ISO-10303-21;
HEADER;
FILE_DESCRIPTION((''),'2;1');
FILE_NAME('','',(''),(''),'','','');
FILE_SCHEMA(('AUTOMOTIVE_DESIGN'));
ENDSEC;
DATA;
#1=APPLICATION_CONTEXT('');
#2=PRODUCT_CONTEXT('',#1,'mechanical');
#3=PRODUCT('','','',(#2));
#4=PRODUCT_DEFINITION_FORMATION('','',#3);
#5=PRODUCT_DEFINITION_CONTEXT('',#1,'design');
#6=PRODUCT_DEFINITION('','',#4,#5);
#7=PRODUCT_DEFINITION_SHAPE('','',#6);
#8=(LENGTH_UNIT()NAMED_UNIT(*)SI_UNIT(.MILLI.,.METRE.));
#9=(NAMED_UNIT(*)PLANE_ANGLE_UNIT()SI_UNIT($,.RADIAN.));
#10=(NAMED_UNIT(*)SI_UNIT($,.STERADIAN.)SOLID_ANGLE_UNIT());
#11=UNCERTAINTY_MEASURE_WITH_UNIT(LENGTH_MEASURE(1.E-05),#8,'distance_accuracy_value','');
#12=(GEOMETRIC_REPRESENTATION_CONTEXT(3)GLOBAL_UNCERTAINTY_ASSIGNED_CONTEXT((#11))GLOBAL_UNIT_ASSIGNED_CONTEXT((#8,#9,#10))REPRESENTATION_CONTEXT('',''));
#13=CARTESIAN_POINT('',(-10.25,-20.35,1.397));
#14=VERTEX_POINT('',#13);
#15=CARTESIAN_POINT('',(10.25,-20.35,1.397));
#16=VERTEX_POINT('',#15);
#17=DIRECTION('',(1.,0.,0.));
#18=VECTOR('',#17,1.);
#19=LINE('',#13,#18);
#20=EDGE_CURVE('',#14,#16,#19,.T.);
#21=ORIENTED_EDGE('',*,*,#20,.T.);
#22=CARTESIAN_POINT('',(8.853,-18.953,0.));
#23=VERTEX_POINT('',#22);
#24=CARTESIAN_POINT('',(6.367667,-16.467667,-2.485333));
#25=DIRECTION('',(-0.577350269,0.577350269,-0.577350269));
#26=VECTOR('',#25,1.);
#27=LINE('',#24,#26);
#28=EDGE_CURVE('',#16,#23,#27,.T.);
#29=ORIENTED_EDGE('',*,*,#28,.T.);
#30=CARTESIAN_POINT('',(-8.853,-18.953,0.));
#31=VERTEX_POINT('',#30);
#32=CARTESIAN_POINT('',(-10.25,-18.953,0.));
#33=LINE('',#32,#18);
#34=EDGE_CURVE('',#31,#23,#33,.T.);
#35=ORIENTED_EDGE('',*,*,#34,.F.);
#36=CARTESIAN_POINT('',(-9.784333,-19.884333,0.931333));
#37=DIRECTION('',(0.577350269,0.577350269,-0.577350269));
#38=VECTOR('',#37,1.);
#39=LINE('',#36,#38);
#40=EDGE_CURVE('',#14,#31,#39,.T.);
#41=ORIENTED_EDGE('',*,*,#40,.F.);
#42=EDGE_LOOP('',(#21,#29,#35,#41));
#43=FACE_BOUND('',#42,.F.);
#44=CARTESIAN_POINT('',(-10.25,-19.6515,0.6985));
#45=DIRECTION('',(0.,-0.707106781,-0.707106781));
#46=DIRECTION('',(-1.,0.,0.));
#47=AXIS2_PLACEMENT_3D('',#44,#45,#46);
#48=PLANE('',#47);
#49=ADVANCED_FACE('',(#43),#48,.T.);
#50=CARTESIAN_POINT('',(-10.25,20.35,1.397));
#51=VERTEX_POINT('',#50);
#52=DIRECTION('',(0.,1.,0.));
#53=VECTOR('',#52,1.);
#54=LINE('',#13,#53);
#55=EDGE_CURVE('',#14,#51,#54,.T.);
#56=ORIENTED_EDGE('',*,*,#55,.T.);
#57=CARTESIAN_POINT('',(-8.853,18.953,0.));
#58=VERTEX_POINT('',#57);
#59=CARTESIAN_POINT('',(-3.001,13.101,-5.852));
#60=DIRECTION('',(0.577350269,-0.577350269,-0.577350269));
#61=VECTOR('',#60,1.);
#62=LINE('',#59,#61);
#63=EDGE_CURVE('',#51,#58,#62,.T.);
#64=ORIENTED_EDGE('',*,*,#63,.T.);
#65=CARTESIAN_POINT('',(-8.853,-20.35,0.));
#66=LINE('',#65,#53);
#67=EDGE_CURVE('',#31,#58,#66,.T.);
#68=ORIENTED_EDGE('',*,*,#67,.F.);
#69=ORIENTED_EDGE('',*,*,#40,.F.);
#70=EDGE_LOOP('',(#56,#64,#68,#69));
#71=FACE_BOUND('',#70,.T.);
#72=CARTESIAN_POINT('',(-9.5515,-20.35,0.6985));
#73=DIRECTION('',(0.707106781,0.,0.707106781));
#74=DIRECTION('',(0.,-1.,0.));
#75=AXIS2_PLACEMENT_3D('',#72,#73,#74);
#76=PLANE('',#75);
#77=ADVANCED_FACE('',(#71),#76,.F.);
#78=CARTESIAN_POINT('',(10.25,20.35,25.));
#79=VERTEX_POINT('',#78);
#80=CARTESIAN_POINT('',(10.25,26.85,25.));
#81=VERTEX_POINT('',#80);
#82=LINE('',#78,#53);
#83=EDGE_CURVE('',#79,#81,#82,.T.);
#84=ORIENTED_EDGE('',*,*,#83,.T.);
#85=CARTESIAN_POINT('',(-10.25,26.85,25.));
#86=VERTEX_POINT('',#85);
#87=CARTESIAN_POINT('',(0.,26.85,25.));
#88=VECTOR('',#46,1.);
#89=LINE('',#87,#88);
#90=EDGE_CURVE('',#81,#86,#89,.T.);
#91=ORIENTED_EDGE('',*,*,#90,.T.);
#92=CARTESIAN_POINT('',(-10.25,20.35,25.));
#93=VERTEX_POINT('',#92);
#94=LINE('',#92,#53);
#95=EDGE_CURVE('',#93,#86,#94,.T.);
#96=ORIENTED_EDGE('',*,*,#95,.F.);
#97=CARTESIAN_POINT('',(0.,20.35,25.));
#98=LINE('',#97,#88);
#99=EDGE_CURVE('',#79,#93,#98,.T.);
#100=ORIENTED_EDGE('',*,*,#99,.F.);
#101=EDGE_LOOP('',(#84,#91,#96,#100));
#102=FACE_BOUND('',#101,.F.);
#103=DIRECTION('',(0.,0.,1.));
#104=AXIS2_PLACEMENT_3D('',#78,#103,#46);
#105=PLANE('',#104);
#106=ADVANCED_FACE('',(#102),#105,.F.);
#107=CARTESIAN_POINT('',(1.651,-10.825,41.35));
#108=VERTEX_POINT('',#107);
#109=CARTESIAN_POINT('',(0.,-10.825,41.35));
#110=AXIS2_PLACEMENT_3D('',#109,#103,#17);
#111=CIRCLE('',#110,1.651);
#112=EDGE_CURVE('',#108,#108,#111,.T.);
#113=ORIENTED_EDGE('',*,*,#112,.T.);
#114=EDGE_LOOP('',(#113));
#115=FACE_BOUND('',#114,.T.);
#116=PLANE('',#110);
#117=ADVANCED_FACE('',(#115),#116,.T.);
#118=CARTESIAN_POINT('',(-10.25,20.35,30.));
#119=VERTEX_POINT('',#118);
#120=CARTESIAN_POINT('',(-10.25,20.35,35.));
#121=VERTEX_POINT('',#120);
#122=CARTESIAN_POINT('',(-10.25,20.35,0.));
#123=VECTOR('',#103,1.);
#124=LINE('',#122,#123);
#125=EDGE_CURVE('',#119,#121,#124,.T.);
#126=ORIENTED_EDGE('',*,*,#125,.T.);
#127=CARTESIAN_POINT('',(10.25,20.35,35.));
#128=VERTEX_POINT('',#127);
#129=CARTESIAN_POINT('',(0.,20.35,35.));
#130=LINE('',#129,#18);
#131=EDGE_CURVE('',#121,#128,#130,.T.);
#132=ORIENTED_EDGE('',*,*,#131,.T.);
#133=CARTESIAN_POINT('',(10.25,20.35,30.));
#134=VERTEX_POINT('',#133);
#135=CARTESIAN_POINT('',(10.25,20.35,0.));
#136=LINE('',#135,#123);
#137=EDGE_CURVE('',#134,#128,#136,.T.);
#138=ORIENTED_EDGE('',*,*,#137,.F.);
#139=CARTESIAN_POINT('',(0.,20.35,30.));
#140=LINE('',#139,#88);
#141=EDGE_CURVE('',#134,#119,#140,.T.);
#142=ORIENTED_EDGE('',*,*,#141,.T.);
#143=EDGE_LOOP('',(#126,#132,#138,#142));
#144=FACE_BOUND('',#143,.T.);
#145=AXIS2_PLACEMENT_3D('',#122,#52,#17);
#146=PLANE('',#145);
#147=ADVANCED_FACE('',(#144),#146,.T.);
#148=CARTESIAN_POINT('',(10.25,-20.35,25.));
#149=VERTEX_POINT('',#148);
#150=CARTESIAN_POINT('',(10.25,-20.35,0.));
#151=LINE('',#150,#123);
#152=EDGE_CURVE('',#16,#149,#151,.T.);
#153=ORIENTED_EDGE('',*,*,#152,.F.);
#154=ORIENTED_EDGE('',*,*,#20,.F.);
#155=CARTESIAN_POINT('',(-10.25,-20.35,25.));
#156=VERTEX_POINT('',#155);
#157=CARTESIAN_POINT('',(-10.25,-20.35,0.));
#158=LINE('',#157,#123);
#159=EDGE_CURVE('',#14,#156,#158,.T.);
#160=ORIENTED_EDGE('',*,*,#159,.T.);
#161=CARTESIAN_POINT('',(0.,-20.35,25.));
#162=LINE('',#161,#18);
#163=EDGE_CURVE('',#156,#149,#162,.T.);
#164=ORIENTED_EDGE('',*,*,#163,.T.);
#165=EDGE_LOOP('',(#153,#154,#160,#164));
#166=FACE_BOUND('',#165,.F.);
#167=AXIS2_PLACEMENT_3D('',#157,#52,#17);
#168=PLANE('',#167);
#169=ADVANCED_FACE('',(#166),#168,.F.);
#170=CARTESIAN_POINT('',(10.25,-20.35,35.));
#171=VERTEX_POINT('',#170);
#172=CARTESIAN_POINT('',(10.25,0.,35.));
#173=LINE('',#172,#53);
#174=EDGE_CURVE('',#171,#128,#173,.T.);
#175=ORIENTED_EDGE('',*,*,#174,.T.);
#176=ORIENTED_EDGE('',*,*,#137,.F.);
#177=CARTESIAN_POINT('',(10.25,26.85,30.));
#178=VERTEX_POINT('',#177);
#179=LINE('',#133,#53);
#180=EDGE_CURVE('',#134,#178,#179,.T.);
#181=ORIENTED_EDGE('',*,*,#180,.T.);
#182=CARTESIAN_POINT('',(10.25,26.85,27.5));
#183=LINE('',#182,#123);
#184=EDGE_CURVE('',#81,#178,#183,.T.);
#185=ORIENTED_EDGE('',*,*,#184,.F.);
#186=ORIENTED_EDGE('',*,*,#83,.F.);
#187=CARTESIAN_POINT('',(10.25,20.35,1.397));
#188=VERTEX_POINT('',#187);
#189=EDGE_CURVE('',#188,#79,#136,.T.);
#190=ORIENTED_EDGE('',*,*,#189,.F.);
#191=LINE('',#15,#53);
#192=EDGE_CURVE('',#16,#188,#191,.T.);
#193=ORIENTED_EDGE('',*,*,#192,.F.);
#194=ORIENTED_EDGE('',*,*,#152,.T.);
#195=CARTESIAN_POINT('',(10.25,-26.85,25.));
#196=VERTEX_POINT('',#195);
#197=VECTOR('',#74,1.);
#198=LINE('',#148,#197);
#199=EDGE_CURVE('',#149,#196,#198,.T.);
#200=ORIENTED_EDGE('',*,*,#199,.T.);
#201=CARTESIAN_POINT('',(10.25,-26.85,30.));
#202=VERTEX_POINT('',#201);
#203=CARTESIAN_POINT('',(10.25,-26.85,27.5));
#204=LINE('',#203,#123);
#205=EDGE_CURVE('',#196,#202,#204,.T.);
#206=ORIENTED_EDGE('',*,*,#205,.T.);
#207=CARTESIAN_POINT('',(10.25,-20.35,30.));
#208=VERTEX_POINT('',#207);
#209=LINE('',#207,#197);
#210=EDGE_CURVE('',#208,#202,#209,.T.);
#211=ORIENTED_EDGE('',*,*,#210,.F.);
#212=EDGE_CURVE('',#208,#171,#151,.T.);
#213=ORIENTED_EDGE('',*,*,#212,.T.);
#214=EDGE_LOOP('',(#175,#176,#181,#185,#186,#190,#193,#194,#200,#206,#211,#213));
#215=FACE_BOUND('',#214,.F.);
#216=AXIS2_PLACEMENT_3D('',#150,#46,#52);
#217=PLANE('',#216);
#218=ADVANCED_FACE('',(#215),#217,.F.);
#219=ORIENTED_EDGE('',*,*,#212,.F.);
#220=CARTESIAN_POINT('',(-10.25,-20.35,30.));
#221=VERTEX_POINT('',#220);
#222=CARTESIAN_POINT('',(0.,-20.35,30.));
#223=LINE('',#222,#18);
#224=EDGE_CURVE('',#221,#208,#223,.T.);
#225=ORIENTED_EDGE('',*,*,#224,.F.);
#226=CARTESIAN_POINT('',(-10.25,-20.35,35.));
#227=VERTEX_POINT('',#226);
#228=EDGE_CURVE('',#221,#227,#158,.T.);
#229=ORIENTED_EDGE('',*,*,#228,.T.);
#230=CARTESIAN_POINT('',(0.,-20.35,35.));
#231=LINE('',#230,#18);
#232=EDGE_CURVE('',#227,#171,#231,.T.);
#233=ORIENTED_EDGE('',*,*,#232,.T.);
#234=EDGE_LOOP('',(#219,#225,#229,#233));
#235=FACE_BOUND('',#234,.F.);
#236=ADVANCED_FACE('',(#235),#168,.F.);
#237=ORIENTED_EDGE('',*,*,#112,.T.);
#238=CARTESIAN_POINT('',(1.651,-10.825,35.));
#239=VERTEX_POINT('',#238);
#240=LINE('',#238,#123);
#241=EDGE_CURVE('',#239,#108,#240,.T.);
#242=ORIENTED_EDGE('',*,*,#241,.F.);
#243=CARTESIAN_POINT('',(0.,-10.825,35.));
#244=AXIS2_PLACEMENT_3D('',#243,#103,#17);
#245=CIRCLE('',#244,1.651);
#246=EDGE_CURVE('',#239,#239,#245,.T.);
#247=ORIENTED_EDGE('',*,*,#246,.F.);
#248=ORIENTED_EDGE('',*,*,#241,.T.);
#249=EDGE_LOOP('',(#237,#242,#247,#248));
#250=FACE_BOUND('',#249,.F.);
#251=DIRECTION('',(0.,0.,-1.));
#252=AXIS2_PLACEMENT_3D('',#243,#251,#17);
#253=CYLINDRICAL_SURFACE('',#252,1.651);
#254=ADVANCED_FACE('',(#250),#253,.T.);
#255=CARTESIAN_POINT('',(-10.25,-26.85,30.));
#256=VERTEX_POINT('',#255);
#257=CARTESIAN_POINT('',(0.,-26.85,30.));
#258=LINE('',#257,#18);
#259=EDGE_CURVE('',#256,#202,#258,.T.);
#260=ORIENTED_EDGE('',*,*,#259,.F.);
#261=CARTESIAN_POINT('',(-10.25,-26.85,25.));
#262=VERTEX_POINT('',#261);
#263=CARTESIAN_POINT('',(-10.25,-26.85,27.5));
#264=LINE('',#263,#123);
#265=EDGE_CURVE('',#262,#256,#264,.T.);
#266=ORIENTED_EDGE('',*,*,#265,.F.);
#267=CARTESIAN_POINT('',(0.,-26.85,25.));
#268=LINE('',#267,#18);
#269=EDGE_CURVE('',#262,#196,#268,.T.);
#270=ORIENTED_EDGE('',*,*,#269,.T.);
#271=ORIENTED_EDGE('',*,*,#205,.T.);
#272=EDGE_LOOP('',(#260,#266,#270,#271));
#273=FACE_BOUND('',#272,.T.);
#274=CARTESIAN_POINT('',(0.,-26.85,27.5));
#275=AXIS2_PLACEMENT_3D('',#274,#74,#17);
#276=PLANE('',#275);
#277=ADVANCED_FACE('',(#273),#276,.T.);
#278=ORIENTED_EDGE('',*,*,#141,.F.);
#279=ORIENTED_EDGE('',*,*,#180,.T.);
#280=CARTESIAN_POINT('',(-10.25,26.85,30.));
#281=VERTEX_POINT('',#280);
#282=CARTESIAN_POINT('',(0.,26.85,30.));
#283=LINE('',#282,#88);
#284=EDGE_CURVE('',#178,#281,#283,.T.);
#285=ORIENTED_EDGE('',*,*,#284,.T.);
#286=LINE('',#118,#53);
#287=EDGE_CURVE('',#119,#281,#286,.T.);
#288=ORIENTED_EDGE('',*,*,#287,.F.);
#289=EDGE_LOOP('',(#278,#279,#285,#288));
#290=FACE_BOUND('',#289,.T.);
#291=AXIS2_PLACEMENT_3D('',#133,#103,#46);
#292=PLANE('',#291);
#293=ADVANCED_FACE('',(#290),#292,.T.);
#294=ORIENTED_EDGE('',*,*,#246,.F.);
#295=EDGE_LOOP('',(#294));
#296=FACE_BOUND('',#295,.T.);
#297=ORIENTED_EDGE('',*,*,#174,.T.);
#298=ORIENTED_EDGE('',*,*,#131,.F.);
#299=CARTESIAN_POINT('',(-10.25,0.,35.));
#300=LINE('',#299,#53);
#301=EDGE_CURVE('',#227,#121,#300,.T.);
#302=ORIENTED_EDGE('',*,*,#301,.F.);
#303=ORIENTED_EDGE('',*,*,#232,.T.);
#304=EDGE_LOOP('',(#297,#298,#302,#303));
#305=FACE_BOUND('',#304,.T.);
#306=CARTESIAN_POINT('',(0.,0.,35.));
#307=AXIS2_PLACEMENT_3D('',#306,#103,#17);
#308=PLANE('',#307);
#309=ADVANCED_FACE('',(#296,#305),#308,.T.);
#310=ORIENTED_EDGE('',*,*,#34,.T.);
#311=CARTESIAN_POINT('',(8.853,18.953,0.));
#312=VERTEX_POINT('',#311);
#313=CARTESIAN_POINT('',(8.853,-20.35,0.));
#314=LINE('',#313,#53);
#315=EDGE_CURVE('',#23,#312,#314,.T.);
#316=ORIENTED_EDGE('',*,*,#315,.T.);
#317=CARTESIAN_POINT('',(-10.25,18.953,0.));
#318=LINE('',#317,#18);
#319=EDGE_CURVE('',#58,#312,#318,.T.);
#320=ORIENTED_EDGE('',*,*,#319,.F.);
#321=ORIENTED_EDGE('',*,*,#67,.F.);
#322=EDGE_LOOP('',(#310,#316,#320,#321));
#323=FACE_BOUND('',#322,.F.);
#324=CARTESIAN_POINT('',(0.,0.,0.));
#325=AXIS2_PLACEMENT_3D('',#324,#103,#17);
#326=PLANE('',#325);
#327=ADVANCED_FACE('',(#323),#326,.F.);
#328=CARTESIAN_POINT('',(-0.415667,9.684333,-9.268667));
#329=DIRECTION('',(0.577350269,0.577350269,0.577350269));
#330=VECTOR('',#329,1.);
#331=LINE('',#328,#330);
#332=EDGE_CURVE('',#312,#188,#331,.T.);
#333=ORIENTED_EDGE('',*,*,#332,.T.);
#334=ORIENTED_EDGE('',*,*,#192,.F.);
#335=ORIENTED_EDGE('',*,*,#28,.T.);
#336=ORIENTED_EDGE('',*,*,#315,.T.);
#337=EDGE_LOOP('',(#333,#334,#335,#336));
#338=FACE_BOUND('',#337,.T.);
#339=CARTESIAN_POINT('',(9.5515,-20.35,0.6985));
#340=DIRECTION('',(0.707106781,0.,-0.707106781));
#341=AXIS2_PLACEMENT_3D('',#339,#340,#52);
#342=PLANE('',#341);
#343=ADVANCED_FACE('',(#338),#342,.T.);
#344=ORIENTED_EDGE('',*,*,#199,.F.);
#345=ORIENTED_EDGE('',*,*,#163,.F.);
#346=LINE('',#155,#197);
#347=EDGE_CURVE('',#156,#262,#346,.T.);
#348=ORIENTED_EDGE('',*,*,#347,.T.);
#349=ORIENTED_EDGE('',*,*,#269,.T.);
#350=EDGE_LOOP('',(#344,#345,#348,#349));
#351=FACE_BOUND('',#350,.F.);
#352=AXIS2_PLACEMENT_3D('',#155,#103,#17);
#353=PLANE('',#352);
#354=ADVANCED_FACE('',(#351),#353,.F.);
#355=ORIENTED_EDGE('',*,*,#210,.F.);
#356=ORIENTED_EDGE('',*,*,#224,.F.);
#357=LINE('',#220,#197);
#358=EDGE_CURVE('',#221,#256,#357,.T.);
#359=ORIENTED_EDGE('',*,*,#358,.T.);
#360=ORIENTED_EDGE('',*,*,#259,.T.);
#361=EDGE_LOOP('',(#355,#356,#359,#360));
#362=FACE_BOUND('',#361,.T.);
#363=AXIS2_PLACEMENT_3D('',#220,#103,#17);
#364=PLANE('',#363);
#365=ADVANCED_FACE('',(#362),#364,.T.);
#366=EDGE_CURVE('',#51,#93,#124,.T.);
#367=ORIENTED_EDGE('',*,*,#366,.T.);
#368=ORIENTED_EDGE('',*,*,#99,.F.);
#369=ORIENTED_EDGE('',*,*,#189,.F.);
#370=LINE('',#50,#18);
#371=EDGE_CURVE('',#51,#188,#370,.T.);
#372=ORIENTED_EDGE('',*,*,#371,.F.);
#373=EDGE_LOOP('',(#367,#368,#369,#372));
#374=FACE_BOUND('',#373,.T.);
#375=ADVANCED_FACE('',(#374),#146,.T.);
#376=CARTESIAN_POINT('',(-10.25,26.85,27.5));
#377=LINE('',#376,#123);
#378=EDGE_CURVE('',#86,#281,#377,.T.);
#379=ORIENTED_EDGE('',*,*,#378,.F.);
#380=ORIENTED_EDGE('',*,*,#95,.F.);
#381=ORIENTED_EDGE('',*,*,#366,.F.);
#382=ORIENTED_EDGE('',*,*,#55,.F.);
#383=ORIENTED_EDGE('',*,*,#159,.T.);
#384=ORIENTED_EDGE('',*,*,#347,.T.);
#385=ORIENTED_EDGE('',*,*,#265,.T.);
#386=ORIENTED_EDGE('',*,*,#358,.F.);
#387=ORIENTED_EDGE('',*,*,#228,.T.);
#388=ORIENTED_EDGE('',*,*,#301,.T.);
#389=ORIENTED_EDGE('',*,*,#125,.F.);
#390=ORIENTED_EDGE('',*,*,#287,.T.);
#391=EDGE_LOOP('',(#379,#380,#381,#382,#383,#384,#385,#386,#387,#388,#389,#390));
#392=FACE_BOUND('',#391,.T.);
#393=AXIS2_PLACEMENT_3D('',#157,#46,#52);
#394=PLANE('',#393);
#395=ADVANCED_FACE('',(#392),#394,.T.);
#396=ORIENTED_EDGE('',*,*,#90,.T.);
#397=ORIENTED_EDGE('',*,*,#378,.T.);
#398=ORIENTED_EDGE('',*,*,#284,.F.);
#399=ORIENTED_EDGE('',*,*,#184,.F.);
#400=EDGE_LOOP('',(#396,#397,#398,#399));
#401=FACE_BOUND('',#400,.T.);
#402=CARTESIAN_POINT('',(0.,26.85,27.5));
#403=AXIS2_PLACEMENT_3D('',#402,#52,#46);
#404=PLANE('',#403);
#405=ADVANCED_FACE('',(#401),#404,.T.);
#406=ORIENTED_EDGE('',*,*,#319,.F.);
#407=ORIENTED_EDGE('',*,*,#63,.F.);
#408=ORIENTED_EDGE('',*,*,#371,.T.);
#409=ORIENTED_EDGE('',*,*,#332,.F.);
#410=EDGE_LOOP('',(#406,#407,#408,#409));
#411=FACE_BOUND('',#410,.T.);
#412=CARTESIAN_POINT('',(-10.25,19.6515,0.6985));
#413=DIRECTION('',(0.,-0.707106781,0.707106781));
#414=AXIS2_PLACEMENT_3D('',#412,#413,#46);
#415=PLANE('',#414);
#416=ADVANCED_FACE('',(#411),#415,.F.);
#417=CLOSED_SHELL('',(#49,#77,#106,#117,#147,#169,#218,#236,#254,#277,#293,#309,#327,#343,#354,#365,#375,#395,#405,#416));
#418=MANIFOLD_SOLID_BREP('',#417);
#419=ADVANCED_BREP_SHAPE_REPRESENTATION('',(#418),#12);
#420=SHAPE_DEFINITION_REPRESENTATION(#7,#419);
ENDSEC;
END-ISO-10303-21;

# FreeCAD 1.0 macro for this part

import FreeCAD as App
import Part
import Sketcher
Q = App.Units.Quantity


def edges_at(feature, points):
    """Names of the edges that pass closest to the given points."""
    edges = feature.Shape.Edges
    near = lambda p: min(range(len(edges)), key=lambda i: edges[i].distToShape(Part.Vertex(*p))[0])
    return sorted({f"Edge{near(p) + 1}" for p in points})

doc = App.newDocument("Part")
params = doc.addObject("Spreadsheet::Sheet", "Params")
for row, (alias, value) in enumerate([
    ("sketch1_width", "20.5 mm"),
    ("sketch1_height", "40.7 mm"),
    ("pad1_length", "35 mm"),
    ("pad2_length", "6.35 mm"),
    ("sketch3_height", "5 mm"),
    ("sketch3_width", "20.5 mm"),
    ("pad3_length", "6.5 mm"),
    ("sketch4_height", "5 mm"),
    ("sketch4_width", "20.5 mm"),
    ("pad4_length", "6.5 mm"),
    ("chamfer_size", "1.397 mm"),
], start=1):
    params.set(f"A{row}", alias)
    params.set(f"B{row}", "=" + value)
    params.setAlias(f"B{row}", alias)

body = doc.addObject("PartDesign::Body", "Body")

sketch1 = doc.addObject("Sketcher::SketchObject", "Sketch")
body.addObject(sketch1)
sketch1.AttachmentSupport = (doc.XY_Plane, [""])
sketch1.MapMode = "FlatFace"
sketch1.addGeometry([
    Part.LineSegment(App.Vector(-10, 20, 0), App.Vector(-10, -20, 0)),
    Part.LineSegment(App.Vector(-10, -20, 0), App.Vector(10, -20, 0)),
    Part.LineSegment(App.Vector(10, -20, 0), App.Vector(10, 20, 0)),
    Part.LineSegment(App.Vector(10, 20, 0), App.Vector(-10, 20, 0)),
], False)
sketch1.addConstraint([
    Sketcher.Constraint("Coincident", 0, 2, 1, 1),
    Sketcher.Constraint("Coincident", 1, 2, 2, 1),
    Sketcher.Constraint("Coincident", 2, 2, 3, 1),
    Sketcher.Constraint("Coincident", 3, 2, 0, 1),
    Sketcher.Constraint("Vertical", 0),
    Sketcher.Constraint("Horizontal", 1),
    Sketcher.Constraint("Vertical", 2),
    Sketcher.Constraint("Horizontal", 3),
    Sketcher.Constraint("Symmetric", 0, 2, 2, 2, -1, 1),
    Sketcher.Constraint("DistanceX", 1, 1, 1, 2, Q("20.5 mm")),
    Sketcher.Constraint("DistanceY", 0, 2, 0, 1, Q("40.7 mm")),
])
sketch1.setExpression("Constraints[9]", "Params.sketch1_width")
sketch1.setExpression("Constraints[10]", "Params.sketch1_height")
pad1 = doc.addObject("PartDesign::Pad", "Pad")
body.addObject(pad1)
pad1.Profile = sketch1
pad1.setExpression("Length", "Params.pad1_length")

sketch2 = doc.addObject("Sketcher::SketchObject", "Sketch001")
body.addObject(sketch2)
sketch2.AttachmentSupport = (doc.XY_Plane, [""])
sketch2.MapMode = "FlatFace"
sketch2.AttachmentOffset = App.Placement(App.Vector(0, 0, 35), App.Rotation())
sketch2.addGeometry(Part.Circle(App.Vector(0, -10.8, 0), App.Vector(0, 0, 1), 1.7), False)
sketch2.addConstraint([
    Sketcher.Constraint("PointOnObject", 0, 3, -2),
    Sketcher.Constraint("Diameter", 0, Q("3.302 mm")),
    Sketcher.Constraint("DistanceY", 0, 3, -1, 1, Q("10.825 mm")),
])
pad2 = doc.addObject("PartDesign::Pad", "Pad001")
body.addObject(pad2)
pad2.Profile = sketch2
pad2.setExpression("Length", "Params.pad2_length")

sketch3 = doc.addObject("Sketcher::SketchObject", "Sketch002")
body.addObject(sketch3)
sketch3.AttachmentSupport = (doc.XZ_Plane, [""])
sketch3.MapMode = "FlatFace"
sketch3.AttachmentOffset = App.Placement(App.Vector(0, 0, 20.35), App.Rotation())
sketch3.addGeometry([
    Part.LineSegment(App.Vector(-10, 30, 0), App.Vector(-10, 25, 0)),
    Part.LineSegment(App.Vector(-10, 25, 0), App.Vector(10, 25, 0)),
    Part.LineSegment(App.Vector(10, 25, 0), App.Vector(10, 30, 0)),
    Part.LineSegment(App.Vector(10, 30, 0), App.Vector(-10, 30, 0)),
], False)
sketch3.addConstraint([
    Sketcher.Constraint("Coincident", 0, 2, 1, 1),
    Sketcher.Constraint("Coincident", 1, 2, 2, 1),
    Sketcher.Constraint("Coincident", 2, 2, 3, 1),
    Sketcher.Constraint("Coincident", 3, 2, 0, 1),
    Sketcher.Constraint("Vertical", 0),
    Sketcher.Constraint("Horizontal", 1),
    Sketcher.Constraint("Vertical", 2),
    Sketcher.Constraint("Horizontal", 3),
    Sketcher.Constraint("DistanceY", 0, 2, 0, 1, Q("5 mm")),
    Sketcher.Constraint("DistanceX", 1, 1, 1, 2, Q("20.5 mm")),
    Sketcher.Constraint("DistanceY", -1, 1, 0, 2, Q("25 mm")),
    Sketcher.Constraint("DistanceX", 0, 2, -1, 1, Q("10.25 mm")),
])
sketch3.setExpression("Constraints[8]", "Params.sketch3_height")
sketch3.setExpression("Constraints[9]", "Params.sketch3_width")
pad3 = doc.addObject("PartDesign::Pad", "Pad002")
body.addObject(pad3)
pad3.Profile = sketch3
pad3.setExpression("Length", "Params.pad3_length")

sketch4 = doc.addObject("Sketcher::SketchObject", "Sketch003")
body.addObject(sketch4)
sketch4.AttachmentSupport = (doc.XZ_Plane, [""])
sketch4.MapMode = "FlatFace"
sketch4.AttachmentOffset = App.Placement(App.Vector(0, 0, -20.35), App.Rotation())
sketch4.addGeometry([
    Part.LineSegment(App.Vector(10, 30, 0), App.Vector(10, 25, 0)),
    Part.LineSegment(App.Vector(10, 25, 0), App.Vector(-10, 25, 0)),
    Part.LineSegment(App.Vector(-10, 25, 0), App.Vector(-10, 30, 0)),
    Part.LineSegment(App.Vector(-10, 30, 0), App.Vector(10, 30, 0)),
], False)
sketch4.addConstraint([
    Sketcher.Constraint("Coincident", 0, 2, 1, 1),
    Sketcher.Constraint("Coincident", 1, 2, 2, 1),
    Sketcher.Constraint("Coincident", 2, 2, 3, 1),
    Sketcher.Constraint("Coincident", 3, 2, 0, 1),
    Sketcher.Constraint("Vertical", 0),
    Sketcher.Constraint("Horizontal", 1),
    Sketcher.Constraint("Vertical", 2),
    Sketcher.Constraint("Horizontal", 3),
    Sketcher.Constraint("DistanceY", 0, 2, 0, 1, Q("5 mm")),
    Sketcher.Constraint("DistanceX", 1, 2, 1, 1, Q("20.5 mm")),
    Sketcher.Constraint("DistanceY", -1, 1, 0, 2, Q("25 mm")),
    Sketcher.Constraint("DistanceX", -1, 1, 0, 2, Q("10.25 mm")),
])
sketch4.setExpression("Constraints[8]", "Params.sketch4_height")
sketch4.setExpression("Constraints[9]", "Params.sketch4_width")
pad4 = doc.addObject("PartDesign::Pad", "Pad003")
body.addObject(pad4)
pad4.Profile = sketch4
pad4.setExpression("Length", "Params.pad4_length")
pad4.Reversed = True
doc.recompute()

chamfer = doc.addObject("PartDesign::Chamfer", "Chamfer")
body.addObject(chamfer)
chamfer.Base = (pad4, edges_at(pad4, [
    (0, -20.35, 0),
    (10.25, 0, 0),
    (-10.25, 0, 0),
    (0, 20.35, 0),
]))
chamfer.setExpression("Size", "Params.chamfer_size")

doc.recompute()
